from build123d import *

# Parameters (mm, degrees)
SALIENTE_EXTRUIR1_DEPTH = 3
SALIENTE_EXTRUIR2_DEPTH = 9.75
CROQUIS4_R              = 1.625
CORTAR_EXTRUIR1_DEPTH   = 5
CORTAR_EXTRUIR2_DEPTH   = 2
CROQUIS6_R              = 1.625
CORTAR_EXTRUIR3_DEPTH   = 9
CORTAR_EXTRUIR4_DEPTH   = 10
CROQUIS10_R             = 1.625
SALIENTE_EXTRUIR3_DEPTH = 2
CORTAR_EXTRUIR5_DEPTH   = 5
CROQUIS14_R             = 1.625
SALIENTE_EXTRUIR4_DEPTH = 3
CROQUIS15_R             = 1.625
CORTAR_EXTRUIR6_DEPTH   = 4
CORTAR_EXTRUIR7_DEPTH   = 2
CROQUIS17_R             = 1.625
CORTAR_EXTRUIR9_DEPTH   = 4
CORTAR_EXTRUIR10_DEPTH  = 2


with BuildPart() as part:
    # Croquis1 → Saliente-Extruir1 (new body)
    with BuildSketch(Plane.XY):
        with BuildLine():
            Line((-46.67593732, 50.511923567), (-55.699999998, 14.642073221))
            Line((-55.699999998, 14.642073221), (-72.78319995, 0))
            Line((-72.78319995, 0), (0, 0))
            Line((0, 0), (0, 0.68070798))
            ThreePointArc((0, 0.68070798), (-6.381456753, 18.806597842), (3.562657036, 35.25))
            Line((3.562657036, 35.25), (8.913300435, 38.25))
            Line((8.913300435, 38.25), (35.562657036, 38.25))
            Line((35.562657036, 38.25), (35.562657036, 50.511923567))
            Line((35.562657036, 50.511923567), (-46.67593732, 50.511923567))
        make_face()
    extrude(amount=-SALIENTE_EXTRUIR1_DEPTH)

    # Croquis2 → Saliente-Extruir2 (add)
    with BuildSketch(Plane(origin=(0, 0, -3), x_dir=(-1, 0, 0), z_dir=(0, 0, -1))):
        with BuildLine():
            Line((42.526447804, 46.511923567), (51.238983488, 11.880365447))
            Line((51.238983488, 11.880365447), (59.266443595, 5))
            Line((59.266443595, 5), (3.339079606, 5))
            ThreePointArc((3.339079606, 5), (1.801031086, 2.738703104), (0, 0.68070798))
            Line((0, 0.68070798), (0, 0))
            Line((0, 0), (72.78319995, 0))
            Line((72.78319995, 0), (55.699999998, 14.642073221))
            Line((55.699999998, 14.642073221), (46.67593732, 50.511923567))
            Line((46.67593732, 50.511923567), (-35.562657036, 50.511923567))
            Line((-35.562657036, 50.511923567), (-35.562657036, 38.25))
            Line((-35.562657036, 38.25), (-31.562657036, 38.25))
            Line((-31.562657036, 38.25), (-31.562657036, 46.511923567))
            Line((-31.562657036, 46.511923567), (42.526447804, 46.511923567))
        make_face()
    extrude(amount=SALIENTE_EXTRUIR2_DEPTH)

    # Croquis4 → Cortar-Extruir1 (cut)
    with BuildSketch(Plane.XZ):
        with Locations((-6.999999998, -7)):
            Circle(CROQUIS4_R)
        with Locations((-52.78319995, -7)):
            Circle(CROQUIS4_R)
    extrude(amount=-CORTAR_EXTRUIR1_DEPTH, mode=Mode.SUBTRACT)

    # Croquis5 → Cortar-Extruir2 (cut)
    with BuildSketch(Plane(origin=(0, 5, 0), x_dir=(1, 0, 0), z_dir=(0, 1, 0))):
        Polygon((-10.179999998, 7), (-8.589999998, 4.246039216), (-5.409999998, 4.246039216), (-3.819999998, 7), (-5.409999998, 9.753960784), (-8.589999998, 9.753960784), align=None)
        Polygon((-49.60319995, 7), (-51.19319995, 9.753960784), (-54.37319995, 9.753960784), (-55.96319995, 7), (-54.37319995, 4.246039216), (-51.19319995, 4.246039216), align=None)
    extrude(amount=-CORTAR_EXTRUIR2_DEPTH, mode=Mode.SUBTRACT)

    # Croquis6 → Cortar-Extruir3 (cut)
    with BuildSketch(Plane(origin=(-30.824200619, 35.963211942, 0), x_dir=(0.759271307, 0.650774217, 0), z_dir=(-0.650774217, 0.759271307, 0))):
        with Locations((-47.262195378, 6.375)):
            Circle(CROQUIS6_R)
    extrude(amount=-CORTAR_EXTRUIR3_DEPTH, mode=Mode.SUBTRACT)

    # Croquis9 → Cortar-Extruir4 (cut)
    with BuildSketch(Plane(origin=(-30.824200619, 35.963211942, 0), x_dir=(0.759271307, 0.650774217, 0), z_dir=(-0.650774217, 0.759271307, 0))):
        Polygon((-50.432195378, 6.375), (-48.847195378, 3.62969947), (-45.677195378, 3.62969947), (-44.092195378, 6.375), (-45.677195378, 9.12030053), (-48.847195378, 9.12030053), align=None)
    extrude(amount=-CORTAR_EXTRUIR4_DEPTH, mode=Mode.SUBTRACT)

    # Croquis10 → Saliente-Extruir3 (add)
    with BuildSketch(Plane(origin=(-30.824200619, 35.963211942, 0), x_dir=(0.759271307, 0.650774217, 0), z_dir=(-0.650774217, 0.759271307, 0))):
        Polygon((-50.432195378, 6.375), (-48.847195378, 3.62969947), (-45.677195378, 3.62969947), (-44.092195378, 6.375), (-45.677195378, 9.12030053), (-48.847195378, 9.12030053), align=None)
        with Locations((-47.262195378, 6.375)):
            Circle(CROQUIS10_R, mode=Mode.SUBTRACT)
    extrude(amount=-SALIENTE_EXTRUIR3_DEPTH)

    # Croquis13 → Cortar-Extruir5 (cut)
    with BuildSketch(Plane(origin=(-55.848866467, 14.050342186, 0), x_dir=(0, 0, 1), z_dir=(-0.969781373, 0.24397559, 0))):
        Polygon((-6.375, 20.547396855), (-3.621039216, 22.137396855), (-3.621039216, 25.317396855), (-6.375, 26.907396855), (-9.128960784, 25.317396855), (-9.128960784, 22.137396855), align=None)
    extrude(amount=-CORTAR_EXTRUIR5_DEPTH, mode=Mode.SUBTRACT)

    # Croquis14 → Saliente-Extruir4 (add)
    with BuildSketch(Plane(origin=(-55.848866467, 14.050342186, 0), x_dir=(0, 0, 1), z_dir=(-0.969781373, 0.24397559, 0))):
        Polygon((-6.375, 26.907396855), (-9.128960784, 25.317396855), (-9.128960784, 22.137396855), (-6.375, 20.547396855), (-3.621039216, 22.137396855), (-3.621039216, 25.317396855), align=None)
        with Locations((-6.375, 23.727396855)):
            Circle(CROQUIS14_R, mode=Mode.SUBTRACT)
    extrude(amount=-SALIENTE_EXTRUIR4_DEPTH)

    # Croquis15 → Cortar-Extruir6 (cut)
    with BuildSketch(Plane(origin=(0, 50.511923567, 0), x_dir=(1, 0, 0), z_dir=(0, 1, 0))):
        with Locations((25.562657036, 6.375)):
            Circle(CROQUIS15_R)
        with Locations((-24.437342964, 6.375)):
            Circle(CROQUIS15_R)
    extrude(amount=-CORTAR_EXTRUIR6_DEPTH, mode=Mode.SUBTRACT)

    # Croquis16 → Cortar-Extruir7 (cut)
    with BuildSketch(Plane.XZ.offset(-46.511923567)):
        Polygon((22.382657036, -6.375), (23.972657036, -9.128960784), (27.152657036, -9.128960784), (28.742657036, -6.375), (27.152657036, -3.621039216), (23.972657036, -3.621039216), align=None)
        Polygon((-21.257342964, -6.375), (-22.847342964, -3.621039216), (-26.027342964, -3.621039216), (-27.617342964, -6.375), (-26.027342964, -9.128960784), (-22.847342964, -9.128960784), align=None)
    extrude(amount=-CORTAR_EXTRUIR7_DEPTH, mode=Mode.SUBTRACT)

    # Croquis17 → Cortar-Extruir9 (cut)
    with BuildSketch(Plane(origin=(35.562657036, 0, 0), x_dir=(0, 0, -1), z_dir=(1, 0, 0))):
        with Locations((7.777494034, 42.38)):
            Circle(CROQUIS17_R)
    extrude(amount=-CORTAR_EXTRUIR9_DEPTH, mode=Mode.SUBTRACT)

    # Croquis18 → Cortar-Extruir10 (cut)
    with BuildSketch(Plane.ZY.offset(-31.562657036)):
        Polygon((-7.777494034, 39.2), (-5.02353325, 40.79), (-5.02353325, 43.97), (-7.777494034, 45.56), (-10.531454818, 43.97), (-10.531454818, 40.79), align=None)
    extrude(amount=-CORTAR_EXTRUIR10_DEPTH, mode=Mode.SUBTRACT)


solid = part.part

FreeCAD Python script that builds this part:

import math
import FreeCAD as App
import Part
import Sketcher

V = App.Vector
Q = App.Units.Quantity

doc = App.newDocument("Part")
body = doc.addObject("PartDesign::Body", "Body")

# Sketch on XY plane
sketch1 = body.newObject("Sketcher::SketchObject", "Sketch")
sketch1.AttachmentSupport = (doc.getObject("XY_Plane"), [""])
sketch1.MapMode = "FlatFace"
sketch1.addGeometry(Part.LineSegment(V(-46.675937, 50.511924, 0), V(-55.7, 14.642073, 0)), False)
sketch1.addGeometry(Part.LineSegment(V(-55.7, 14.642073, 0), V(-72.7832, 0, 0)), False)
sketch1.addGeometry(Part.LineSegment(V(-72.7832, 0, 0), V(0, 0, 0)), False)
sketch1.addGeometry(Part.LineSegment(V(0, 0, 0), V(0, 0.680708, 0)), False)
sketch1.addGeometry(Part.ArcOfCircle(Part.Circle(V(16, 16.5, 0), V(0, 0, 1), 22.5), math.radians(123.55731), math.radians(224.67461)), False)
sketch1.addGeometry(Part.LineSegment(V(3.562657, 35.25, 0), V(8.9133, 38.25, 0)), False)
sketch1.addGeometry(Part.LineSegment(V(8.9133, 38.25, 0), V(35.562657, 38.25, 0)), False)
sketch1.addGeometry(Part.LineSegment(V(35.562657, 38.25, 0), V(35.562657, 50.511924, 0)), False)
sketch1.addGeometry(Part.LineSegment(V(35.562657, 50.511924, 0), V(-46.675937, 50.511924, 0)), False)
sketch1.addConstraint(Sketcher.Constraint("Coincident", 0, 2, 1, 1))
sketch1.addConstraint(Sketcher.Constraint("Coincident", 1, 2, 2, 1))
sketch1.addConstraint(Sketcher.Constraint("Coincident", 2, 2, 3, 1))
sketch1.addConstraint(Sketcher.Constraint("Coincident", 3, 2, 4, 2))
sketch1.addConstraint(Sketcher.Constraint("Coincident", 4, 1, 5, 1))
sketch1.addConstraint(Sketcher.Constraint("Coincident", 5, 2, 6, 1))
sketch1.addConstraint(Sketcher.Constraint("Coincident", 6, 2, 7, 1))
sketch1.addConstraint(Sketcher.Constraint("Coincident", 7, 2, 8, 1))
sketch1.addConstraint(Sketcher.Constraint("Coincident", 8, 2, 0, 1))
sketch1.addConstraint(Sketcher.Constraint("Horizontal", 2))
sketch1.addConstraint(Sketcher.Constraint("Vertical", 3))
sketch1.addConstraint(Sketcher.Constraint("Horizontal", 6))
sketch1.addConstraint(Sketcher.Constraint("Vertical", 7))
sketch1.addConstraint(Sketcher.Constraint("Horizontal", 8))
sketch1.addConstraint(Sketcher.Constraint("Coincident", 2, 2, -1, 1))
sketch1.addConstraint(Sketcher.Constraint("Radius", 4, Q("22.5 mm")))
sketch1.addConstraint(Sketcher.Constraint("DistanceX", -1, 1, 4, 3, Q("16 mm")))
sketch1.addConstraint(Sketcher.Constraint("Angle", 1, Q("-139.4 deg")))
sketch1.addConstraint(Sketcher.Constraint("DistanceY", 4, 1, 5, 2, Q("3 mm")))
sketch1.addConstraint(Sketcher.Constraint("DistanceX", 4, 1, 6, 2, Q("32 mm")))
sketch1.addConstraint(Sketcher.Constraint("DistanceY", -1, 1, 4, 3, Q("16.5 mm")))
sketch1.addConstraint(Sketcher.Constraint("DistanceX", 0, 2, -1, 1, Q("55.7 mm")))
sketch1.addConstraint(Sketcher.Constraint("DistanceY", -1, 1, 4, 1, Q("35.25 mm")))
sketch1.addConstraint(Sketcher.Constraint("DistanceX", 2, 1, 2, 2, Q("72.7832 mm")))
sketch1.addConstraint(Sketcher.Constraint("DistanceX", -1, 1, 5, 2, Q("8.9133 mm")))
sketch1.addConstraint(Sketcher.Constraint("DistanceX", 8, 2, 8, 1, Q("82.238594 mm")))
sketch1.addConstraint(Sketcher.Constraint("DistanceY", 7, 1, 7, 2, Q("12.261924 mm")))
pad1 = body.newObject("PartDesign::Pad", "Pad")
pad1.Profile = sketch1
pad1.Length = 3
pad1.Reversed = True

# Sketch on XY plane
sketch2 = body.newObject("Sketcher::SketchObject", "Sketch001")
sketch2.AttachmentSupport = (doc.getObject("XY_Plane"), [""])
sketch2.MapMode = "FlatFace"
sketch2.AttachmentOffset = App.Placement(V(0, 0, -3), App.Rotation())
sketch2.addGeometry(Part.LineSegment(V(-42.526448, 46.511924, 0), V(-51.238983, 11.880365, 0)), False)
sketch2.addGeometry(Part.LineSegment(V(-51.238983, 11.880365, 0), V(-59.266444, 5, 0)), False)
sketch2.addGeometry(Part.LineSegment(V(-59.266444, 5, 0), V(-3.33908, 5, 0)), False)
sketch2.addGeometry(Part.ArcOfCircle(Part.Circle(V(16, 16.5, 0), V(0, 0, 1), 22.5), math.radians(-149.262131), math.radians(-135.32539)), False)
sketch2.addGeometry(Part.LineSegment(V(0, 0.680708, 0), V(0, 0, 0)), False)
sketch2.addGeometry(Part.LineSegment(V(0, 0, 0), V(-72.7832, 0, 0)), False)
sketch2.addGeometry(Part.LineSegment(V(-72.7832, 0, 0), V(-55.7, 14.642073, 0)), False)
sketch2.addGeometry(Part.LineSegment(V(-55.7, 14.642073, 0), V(-46.675937, 50.511924, 0)), False)
sketch2.addGeometry(Part.LineSegment(V(-46.675937, 50.511924, 0), V(35.562657, 50.511924, 0)), False)
sketch2.addGeometry(Part.LineSegment(V(35.562657, 50.511924, 0), V(35.562657, 38.25, 0)), False)
sketch2.addGeometry(Part.LineSegment(V(35.562657, 38.25, 0), V(31.562657, 38.25, 0)), False)
sketch2.addGeometry(Part.LineSegment(V(31.562657, 38.25, 0), V(31.562657, 46.511924, 0)), False)
sketch2.addGeometry(Part.LineSegment(V(31.562657, 46.511924, 0), V(-42.526448, 46.511924, 0)), False)
sketch2.addConstraint(Sketcher.Constraint("Coincident", 0, 2, 1, 1))
sketch2.addConstraint(Sketcher.Constraint("Coincident", 1, 2, 2, 1))
sketch2.addConstraint(Sketcher.Constraint("Coincident", 2, 2, 3, 1))
sketch2.addConstraint(Sketcher.Constraint("Coincident", 3, 2, 4, 1))
sketch2.addConstraint(Sketcher.Constraint("Coincident", 4, 2, 5, 1))
sketch2.addConstraint(Sketcher.Constraint("Coincident", 5, 2, 6, 1))
sketch2.addConstraint(Sketcher.Constraint("Coincident", 6, 2, 7, 1))
sketch2.addConstraint(Sketcher.Constraint("Coincident", 7, 2, 8, 1))
sketch2.addConstraint(Sketcher.Constraint("Coincident", 8, 2, 9, 1))
sketch2.addConstraint(Sketcher.Constraint("Coincident", 9, 2, 10, 1))
sketch2.addConstraint(Sketcher.Constraint("Coincident", 10, 2, 11, 1))
sketch2.addConstraint(Sketcher.Constraint("Coincident", 11, 2, 12, 1))
sketch2.addConstraint(Sketcher.Constraint("Coincident", 12, 2, 0, 1))
sketch2.addConstraint(Sketcher.Constraint("Horizontal", 2))
sketch2.addConstraint(Sketcher.Constraint("Vertical", 4))
sketch2.addConstraint(Sketcher.Constraint("Horizontal", 5))
sketch2.addConstraint(Sketcher.Constraint("Horizontal", 8))
sketch2.addConstraint(Sketcher.Constraint("Vertical", 9))
sketch2.addConstraint(Sketcher.Constraint("Horizontal", 10))
sketch2.addConstraint(Sketcher.Constraint("Vertical", 11))
sketch2.addConstraint(Sketcher.Constraint("Horizontal", 12))
sketch2.addConstraint(Sketcher.Constraint("Coincident", 4, 2, -1, 1))
sketch2.addConstraint(Sketcher.Constraint("Parallel", 1, 6))
sketch2.addConstraint(Sketcher.Constraint("Parallel", 0, 7))
sketch2.addConstraint(Sketcher.Constraint("Radius", 3, Q("22.5 mm")))
sketch2.addConstraint(Sketcher.Constraint("DistanceX", 10, 2, 10, 1, Q("4 mm")))
sketch2.addConstraint(Sketcher.Constraint("DistanceX", -1, 1, 3, 3, Q("16 mm")))
sketch2.addConstraint(Sketcher.Constraint("DistanceY", -1, 1, 1, 2, Q("5 mm")))
sketch2.addConstraint(Sketcher.Constraint("Angle", 1, Q("-139.4 deg")))
sketch2.addConstraint(Sketcher.Constraint("DistanceY", 11, 2, 8, 2, Q("4 mm")))
sketch2.addConstraint(Sketcher.Constraint("DistanceY", -1, 1, 3, 3, Q("16.5 mm")))
sketch2.addConstraint(Sketcher.Constraint("DistanceX", 6, 2, -1, 1, Q("55.7 mm")))
sketch2.addConstraint(Sketcher.Constraint("DistanceY", -1, 1, 9, 2, Q("38.25 mm")))
sketch2.addConstraint(Sketcher.Constraint("DistanceX", 5, 2, 5, 1, Q("72.7832 mm")))
sketch2.addConstraint(Sketcher.Constraint("DistanceX", 2, 1, 2, 2, Q("55.927364 mm")))
sketch2.addConstraint(Sketcher.Constraint("DistanceX", 8, 1, 8, 2, Q("82.238594 mm")))
sketch2.addConstraint(Sketcher.Constraint("DistanceX", 12, 2, 12, 1, Q("74.089105 mm")))
sketch2.addConstraint(Sketcher.Constraint("DistanceY", 9, 2, 9, 1, Q("12.261924 mm")))
sketch2.addConstraint(Sketcher.Constraint("DistanceX", 1, 2, 0, 2, Q("8.02746 mm")))
pad2 = body.newObject("PartDesign::Pad", "Pad001")
pad2.Profile = sketch2
pad2.Length = 9.75
pad2.Reversed = True

# Sketch on XZ plane
sketch3 = body.newObject("Sketcher::SketchObject", "Sketch002")
sketch3.AttachmentSupport = (doc.getObject("XZ_Plane"), [""])
sketch3.MapMode = "FlatFace"
sketch3.addGeometry(Part.Circle(V(-7, -7, 0), V(0, 0, 1), 1.625), False)
sketch3.addGeometry(Part.Circle(V(-52.7832, -7, 0), V(0, 0, 1), 1.625), False)
sketch3.addConstraint(Sketcher.Constraint("Equal", 0, 1))
sketch3.addConstraint(Sketcher.Constraint("Horizontal", 0, 3, 1, 3))
sketch3.addConstraint(Sketcher.Constraint("Diameter", 0, Q("3.25 mm")))
sketch3.addConstraint(Sketcher.Constraint("DistanceX", 0, 3, -1, 1, Q("7 mm")))
sketch3.addConstraint(Sketcher.Constraint("DistanceY", 0, 3, -1, 1, Q("7 mm")))
sketch3.addConstraint(Sketcher.Constraint("DistanceX", 1, 3, -1, 1, Q("52.7832 mm")))
pocket1 = body.newObject("PartDesign::Pocket", "Pocket")
pocket1.Profile = sketch3
pocket1.Length = 5

# Sketch on XZ plane
sketch4 = body.newObject("Sketcher::SketchObject", "Sketch003")
sketch4.AttachmentSupport = (doc.getObject("XZ_Plane"), [""])
sketch4.MapMode = "FlatFace"
sketch4.AttachmentOffset = App.Placement(V(0, 0, -5), App.Rotation())
sketch4.addGeometry(Part.LineSegment(V(-10.18, -7, 0), V(-8.59, -4.246039, 0)), False)
sketch4.addGeometry(Part.LineSegment(V(-8.59, -4.246039, 0), V(-5.41, -4.246039, 0)), False)
sketch4.addGeometry(Part.LineSegment(V(-5.41, -4.246039, 0), V(-3.82, -7, 0)), False)
sketch4.addGeometry(Part.LineSegment(V(-3.82, -7, 0), V(-5.41, -9.753961, 0)), False)
sketch4.addGeometry(Part.LineSegment(V(-5.41, -9.753961, 0), V(-8.59, -9.753961, 0)), False)
sketch4.addGeometry(Part.LineSegment(V(-8.59, -9.753961, 0), V(-10.18, -7, 0)), False)
sketch4.addGeometry(Part.LineSegment(V(-49.6032, -7, 0), V(-51.1932, -9.753961, 0)), False)
sketch4.addGeometry(Part.LineSegment(V(-51.1932, -9.753961, 0), V(-54.3732, -9.753961, 0)), False)
sketch4.addGeometry(Part.LineSegment(V(-54.3732, -9.753961, 0), V(-55.9632, -7, 0)), False)
sketch4.addGeometry(Part.LineSegment(V(-55.9632, -7, 0), V(-54.3732, -4.246039, 0)), False)
sketch4.addGeometry(Part.LineSegment(V(-54.3732, -4.246039, 0), V(-51.1932, -4.246039, 0)), False)
sketch4.addGeometry(Part.LineSegment(V(-51.1932, -4.246039, 0), V(-49.6032, -7, 0)), False)
sketch4.addConstraint(Sketcher.Constraint("Coincident", 0, 2, 1, 1))
sketch4.addConstraint(Sketcher.Constraint("Coincident", 1, 2, 2, 1))
sketch4.addConstraint(Sketcher.Constraint("Coincident", 2, 2, 3, 1))
sketch4.addConstraint(Sketcher.Constraint("Coincident", 3, 2, 4, 1))
sketch4.addConstraint(Sketcher.Constraint("Coincident", 4, 2, 5, 1))
sketch4.addConstraint(Sketcher.Constraint("Coincident", 5, 2, 0, 1))
sketch4.addConstraint(Sketcher.Constraint("Coincident", 6, 2, 7, 1))
sketch4.addConstraint(Sketcher.Constraint("Coincident", 7, 2, 8, 1))
sketch4.addConstraint(Sketcher.Constraint("Coincident", 8, 2, 9, 1))
sketch4.addConstraint(Sketcher.Constraint("Coincident", 9, 2, 10, 1))
sketch4.addConstraint(Sketcher.Constraint("Coincident", 10, 2, 11, 1))
sketch4.addConstraint(Sketcher.Constraint("Coincident", 11, 2, 6, 1))
sketch4.addConstraint(Sketcher.Constraint("Horizontal", 1))
sketch4.addConstraint(Sketcher.Constraint("Horizontal", 4))
sketch4.addConstraint(Sketcher.Constraint("Horizontal", 7))
sketch4.addConstraint(Sketcher.Constraint("Horizontal", 10))
sketch4.addConstraint(Sketcher.Constraint("Parallel", 0, 3))
sketch4.addConstraint(Sketcher.Constraint("Parallel", 2, 5))
sketch4.addConstraint(Sketcher.Constraint("Parallel", 3, 6))
sketch4.addConstraint(Sketcher.Constraint("Parallel", 5, 8))
sketch4.addConstraint(Sketcher.Constraint("Parallel", 6, 9))
sketch4.addConstraint(Sketcher.Constraint("Parallel", 8, 11))
sketch4.addConstraint(Sketcher.Constraint("Horizontal", 2, 2, 5, 2))
sketch4.addConstraint(Sketcher.Constraint("Horizontal", 4, 2, 6, 2))
sketch4.addConstraint(Sketcher.Constraint("Horizontal", 5, 2, 8, 2))
sketch4.addConstraint(Sketcher.Constraint("Horizontal", 1, 2, 9, 2))
sketch4.addConstraint(Sketcher.Constraint("Horizontal", 8, 2, 11, 2))
sketch4.addConstraint(Sketcher.Constraint("Vertical", 1, 2, 3, 2))
sketch4.addConstraint(Sketcher.Constraint("Vertical", 0, 2, 4, 2))
sketch4.addConstraint(Sketcher.Constraint("Equal", 4, 7))
sketch4.addConstraint(Sketcher.Constraint("Angle", 0, Q("60 deg")))
sketch4.addConstraint(Sketcher.Constraint("DistanceY", 2, 2, -1, 1, Q("7 mm")))
sketch4.addConstraint(Sketcher.Constraint("DistanceX", 1, 1, 1, 2, Q("3.18 mm")))
sketch4.addConstraint(Sketcher.Constraint("Distance", 0, Q("3.18 mm")))
sketch4.addConstraint(Sketcher.Constraint("DistanceX", 0, 2, -1, 1, Q("8.59 mm")))
sketch4.addConstraint(Sketcher.Constraint("DistanceX", 6, 2, -1, 1, Q("51.1932 mm")))
pocket2 = body.newObject("PartDesign::Pocket", "Pocket001")
pocket2.Profile = sketch4
pocket2.Length = 2
pocket2.Reversed = True

# Sketch on an angled plane
sketch5 = body.newObject("Sketcher::SketchObject", "Sketch004")
sketch5.Placement = App.Placement(V(-30.824201, 35.963212, 0), App.Rotation(V(0.759271307, 0.650774217, 0), V(0, 0, -0.999999999), V(-0.650774217, 0.759271307, 0), "ZXY"))
sketch5.addGeometry(Part.Circle(V(-47.262195, 6.375, 0), V(0, 0, 1), 1.625), False)
sketch5.addConstraint(Sketcher.Constraint("Diameter", 0, Q("3.25 mm")))
sketch5.addConstraint(Sketcher.Constraint("DistanceY", -1, 1, 0, 3, Q("6.375 mm")))
sketch5.addConstraint(Sketcher.Constraint("DistanceX", 0, 3, -1, 1, Q("47.262195 mm")))
pocket3 = body.newObject("PartDesign::Pocket", "Pocket002")
pocket3.Profile = sketch5
pocket3.Length = 9

# Sketch on an angled plane
sketch6 = body.newObject("Sketcher::SketchObject", "Sketch005")
sketch6.Placement = App.Placement(V(-30.824201, 35.963212, 0), App.Rotation(V(0.759271307, 0.650774217, 0), V(0, 0, -0.999999999), V(-0.650774217, 0.759271307, 0), "ZXY"))
sketch6.addGeometry(Part.LineSegment(V(-50.432195, 6.375, 0), V(-48.847195, 3.629699, 0)), False)
sketch6.addGeometry(Part.LineSegment(V(-48.847195, 3.629699, 0), V(-45.677195, 3.629699, 0)), False)
sketch6.addGeometry(Part.LineSegment(V(-45.677195, 3.629699, 0), V(-44.092195, 6.375, 0)), False)
sketch6.addGeometry(Part.LineSegment(V(-44.092195, 6.375, 0), V(-45.677195, 9.120301, 0)), False)
sketch6.addGeometry(Part.LineSegment(V(-45.677195, 9.120301, 0), V(-48.847195, 9.120301, 0)), False)
sketch6.addGeometry(Part.LineSegment(V(-48.847195, 9.120301, 0), V(-50.432195, 6.375, 0)), False)
sketch6.addConstraint(Sketcher.Constraint("Coincident", 0, 2, 1, 1))
sketch6.addConstraint(Sketcher.Constraint("Coincident", 1, 2, 2, 1))
sketch6.addConstraint(Sketcher.Constraint("Coincident", 2, 2, 3, 1))
sketch6.addConstraint(Sketcher.Constraint("Coincident", 3, 2, 4, 1))
sketch6.addConstraint(Sketcher.Constraint("Coincident", 4, 2, 5, 1))
sketch6.addConstraint(Sketcher.Constraint("Coincident", 5, 2, 0, 1))
sketch6.addConstraint(Sketcher.Constraint("Horizontal", 1))
sketch6.addConstraint(Sketcher.Constraint("Horizontal", 4))
sketch6.addConstraint(Sketcher.Constraint("Parallel", 0, 3))
sketch6.addConstraint(Sketcher.Constraint("Parallel", 2, 5))
sketch6.addConstraint(Sketcher.Constraint("Horizontal", 2, 2, 5, 2))
sketch6.addConstraint(Sketcher.Constraint("Vertical", 1, 2, 3, 2))
sketch6.addConstraint(Sketcher.Constraint("Vertical", 0, 2, 4, 2))
sketch6.addConstraint(Sketcher.Constraint("Angle", 0, Q("-60 deg")))
sketch6.addConstraint(Sketcher.Constraint("DistanceX", 1, 1, 1, 2, Q("3.17 mm")))
sketch6.addConstraint(Sketcher.Constraint("Distance", 0, Q("3.17 mm")))
sketch6.addConstraint(Sketcher.Constraint("DistanceY", -1, 1, 2, 2, Q("6.375 mm")))
sketch6.addConstraint(Sketcher.Constraint("DistanceX", 0, 2, -1, 1, Q("48.847195 mm")))
pocket4 = body.newObject("PartDesign::Pocket", "Pocket003")
pocket4.Profile = sketch6
pocket4.Length = 10

# Sketch on an angled plane
sketch7 = body.newObject("Sketcher::SketchObject", "Sketch006")
sketch7.Placement = App.Placement(V(-30.824201, 35.963212, 0), App.Rotation(V(0.759271307, 0.650774217, 0), V(0, 0, -0.999999999), V(-0.650774217, 0.759271307, 0), "ZXY"))
sketch7.addGeometry(Part.LineSegment(V(-50.432195, 6.375, 0), V(-48.847195, 3.629699, 0)), False)
sketch7.addGeometry(Part.LineSegment(V(-48.847195, 3.629699, 0), V(-45.677195, 3.629699, 0)), False)
sketch7.addGeometry(Part.LineSegment(V(-45.677195, 3.629699, 0), V(-44.092195, 6.375, 0)), False)
sketch7.addGeometry(Part.LineSegment(V(-44.092195, 6.375, 0), V(-45.677195, 9.120301, 0)), False)
sketch7.addGeometry(Part.LineSegment(V(-45.677195, 9.120301, 0), V(-48.847195, 9.120301, 0)), False)
sketch7.addGeometry(Part.LineSegment(V(-48.847195, 9.120301, 0), V(-50.432195, 6.375, 0)), False)
sketch7.addGeometry(Part.Circle(V(-47.262195, 6.375, 0), V(0, 0, 1), 1.625), False)
sketch7.addConstraint(Sketcher.Constraint("Coincident", 0, 2, 1, 1))
sketch7.addConstraint(Sketcher.Constraint("Coincident", 1, 2, 2, 1))
sketch7.addConstraint(Sketcher.Constraint("Coincident", 2, 2, 3, 1))
sketch7.addConstraint(Sketcher.Constraint("Coincident", 3, 2, 4, 1))
sketch7.addConstraint(Sketcher.Constraint("Coincident", 4, 2, 5, 1))
sketch7.addConstraint(Sketcher.Constraint("Coincident", 5, 2, 0, 1))
sketch7.addConstraint(Sketcher.Constraint("Horizontal", 1))
sketch7.addConstraint(Sketcher.Constraint("Horizontal", 4))
sketch7.addConstraint(Sketcher.Constraint("Parallel", 0, 3))
sketch7.addConstraint(Sketcher.Constraint("Parallel", 2, 5))
sketch7.addConstraint(Sketcher.Constraint("Horizontal", 6, 3, 2, 2))
sketch7.addConstraint(Sketcher.Constraint("Horizontal", 2, 2, 5, 2))
sketch7.addConstraint(Sketcher.Constraint("Vertical", 1, 2, 3, 2))
sketch7.addConstraint(Sketcher.Constraint("Vertical", 0, 2, 4, 2))
sketch7.addConstraint(Sketcher.Constraint("Diameter", 6, Q("3.25 mm")))
sketch7.addConstraint(Sketcher.Constraint("Angle", 0, Q("-60 deg")))
sketch7.addConstraint(Sketcher.Constraint("DistanceX", 1, 1, 1, 2, Q("3.17 mm")))
sketch7.addConstraint(Sketcher.Constraint("Distance", 0, Q("3.17 mm")))
sketch7.addConstraint(Sketcher.Constraint("DistanceX", 6, 3, 2, 2, Q("3.17 mm")))
sketch7.addConstraint(Sketcher.Constraint("DistanceY", -1, 1, 6, 3, Q("6.375 mm")))
sketch7.addConstraint(Sketcher.Constraint("DistanceX", 6, 3, -1, 1, Q("47.262195 mm")))
pad3 = body.newObject("PartDesign::Pad", "Pad002")
pad3.Profile = sketch7
pad3.Length = 2
pad3.Reversed = True

# Sketch on an angled plane
sketch8 = body.newObject("Sketcher::SketchObject", "Sketch007")
sketch8.Placement = App.Placement(V(-55.848866, 14.050342, 0), App.Rotation(V(0, 0, 1), V(0.24397559, 0.969781373, 0), V(-0.969781373, 0.24397559, 0), "ZXY"))
sketch8.addGeometry(Part.LineSegment(V(-6.375, 20.547397, 0), V(-3.621039, 22.137397, 0)), False)
sketch8.addGeometry(Part.LineSegment(V(-3.621039, 22.137397, 0), V(-3.621039, 25.317397, 0)), False)
sketch8.addGeometry(Part.LineSegment(V(-3.621039, 25.317397, 0), V(-6.375, 26.907397, 0)), False)
sketch8.addGeometry(Part.LineSegment(V(-6.375, 26.907397, 0), V(-9.128961, 25.317397, 0)), False)
sketch8.addGeometry(Part.LineSegment(V(-9.128961, 25.317397, 0), V(-9.128961, 22.137397, 0)), False)
sketch8.addGeometry(Part.LineSegment(V(-9.128961, 22.137397, 0), V(-6.375, 20.547397, 0)), False)
sketch8.addConstraint(Sketcher.Constraint("Coincident", 0, 2, 1, 1))
sketch8.addConstraint(Sketcher.Constraint("Coincident", 1, 2, 2, 1))
sketch8.addConstraint(Sketcher.Constraint("Coincident", 2, 2, 3, 1))
sketch8.addConstraint(Sketcher.Constraint("Coincident", 3, 2, 4, 1))
sketch8.addConstraint(Sketcher.Constraint("Coincident", 4, 2, 5, 1))
sketch8.addConstraint(Sketcher.Constraint("Coincident", 5, 2, 0, 1))
sketch8.addConstraint(Sketcher.Constraint("Vertical", 1))
sketch8.addConstraint(Sketcher.Constraint("Vertical", 4))
sketch8.addConstraint(Sketcher.Constraint("Parallel", 0, 3))
sketch8.addConstraint(Sketcher.Constraint("Parallel", 2, 5))
sketch8.addConstraint(Sketcher.Constraint("Horizontal", 1, 2, 3, 2))
sketch8.addConstraint(Sketcher.Constraint("Horizontal", 0, 2, 4, 2))
sketch8.addConstraint(Sketcher.Constraint("Vertical", 2, 2, 5, 2))
sketch8.addConstraint(Sketcher.Constraint("Angle", 0, Q("30 deg")))
sketch8.addConstraint(Sketcher.Constraint("DistanceY", 1, 1, 1, 2, Q("3.18 mm")))
sketch8.addConstraint(Sketcher.Constraint("Distance", 0, Q("3.18 mm")))
sketch8.addConstraint(Sketcher.Constraint("DistanceX", 2, 2, -1, 1, Q("6.375 mm")))
sketch8.addConstraint(Sketcher.Constraint("DistanceY", -1, 1, 0, 2, Q("22.137397 mm")))
pocket5 = body.newObject("PartDesign::Pocket", "Pocket004")
pocket5.Profile = sketch8
pocket5.Length = 5

# Sketch on an angled plane
sketch9 = body.newObject("Sketcher::SketchObject", "Sketch008")
sketch9.Placement = App.Placement(V(-55.848866, 14.050342, 0), App.Rotation(V(0, 0, 1), V(0.24397559, 0.969781373, 0), V(-0.969781373, 0.24397559, 0), "ZXY"))
sketch9.addGeometry(Part.LineSegment(V(-6.375, 26.907397, 0), V(-9.128961, 25.317397, 0)), False)
sketch9.addGeometry(Part.LineSegment(V(-9.128961, 25.317397, 0), V(-9.128961, 22.137397, 0)), False)
sketch9.addGeometry(Part.LineSegment(V(-9.128961, 22.137397, 0), V(-6.375, 20.547397, 0)), False)
sketch9.addGeometry(Part.LineSegment(V(-6.375, 20.547397, 0), V(-3.621039, 22.137397, 0)), False)
sketch9.addGeometry(Part.LineSegment(V(-3.621039, 22.137397, 0), V(-3.621039, 25.317397, 0)), False)
sketch9.addGeometry(Part.LineSegment(V(-3.621039, 25.317397, 0), V(-6.375, 26.907397, 0)), False)
sketch9.addGeometry(Part.Circle(V(-6.375, 23.727397, 0), V(0, 0, 1), 1.625), False)
sketch9.addConstraint(Sketcher.Constraint("Coincident", 0, 2, 1, 1))
sketch9.addConstraint(Sketcher.Constraint("Coincident", 1, 2, 2, 1))
sketch9.addConstraint(Sketcher.Constraint("Coincident", 2, 2, 3, 1))
sketch9.addConstraint(Sketcher.Constraint("Coincident", 3, 2, 4, 1))
sketch9.addConstraint(Sketcher.Constraint("Coincident", 4, 2, 5, 1))
sketch9.addConstraint(Sketcher.Constraint("Coincident", 5, 2, 0, 1))
sketch9.addConstraint(Sketcher.Constraint("Vertical", 1))
sketch9.addConstraint(Sketcher.Constraint("Vertical", 4))
sketch9.addConstraint(Sketcher.Constraint("Parallel", 0, 3))
sketch9.addConstraint(Sketcher.Constraint("Parallel", 2, 5))
sketch9.addConstraint(Sketcher.Constraint("Horizontal", 1, 2, 3, 2))
sketch9.addConstraint(Sketcher.Constraint("Horizontal", 0, 2, 4, 2))
sketch9.addConstraint(Sketcher.Constraint("Vertical", 6, 3, 2, 2))
sketch9.addConstraint(Sketcher.Constraint("Vertical", 2, 2, 5, 2))
sketch9.addConstraint(Sketcher.Constraint("Diameter", 6, Q("3.25 mm")))
sketch9.addConstraint(Sketcher.Constraint("Angle", 0, Q("-150 deg")))
sketch9.addConstraint(Sketcher.Constraint("DistanceY", 1, 2, 1, 1, Q("3.18 mm")))
sketch9.addConstraint(Sketcher.Constraint("Distance", 0, Q("3.18 mm")))
sketch9.addConstraint(Sketcher.Constraint("DistanceY", 6, 3, 0, 2, Q("1.59 mm")))
sketch9.addConstraint(Sketcher.Constraint("DistanceX", 6, 3, -1, 1, Q("6.375 mm")))
sketch9.addConstraint(Sketcher.Constraint("DistanceY", -1, 1, 6, 3, Q("23.727397 mm")))
pad4 = body.newObject("PartDesign::Pad", "Pad003")
pad4.Profile = sketch9
pad4.Length = 3
pad4.Reversed = True

# Sketch on XZ plane
sketch10 = body.newObject("Sketcher::SketchObject", "Sketch009")
sketch10.AttachmentSupport = (doc.getObject("XZ_Plane"), [""])
sketch10.MapMode = "FlatFace"
sketch10.AttachmentOffset = App.Placement(V(0, 0, -50.511924), App.Rotation())
sketch10.addGeometry(Part.Circle(V(25.562657, -6.375, 0), V(0, 0, 1), 1.625), False)
sketch10.addGeometry(Part.Circle(V(-24.437343, -6.375, 0), V(0, 0, 1), 1.625), False)
sketch10.addConstraint(Sketcher.Constraint("Equal", 0, 1))
sketch10.addConstraint(Sketcher.Constraint("Horizontal", 0, 3, 1, 3))
sketch10.addConstraint(Sketcher.Constraint("Diameter", 0, Q("3.25 mm")))
sketch10.addConstraint(Sketcher.Constraint("DistanceX", 1, 3, 0, 3, Q("50 mm")))
sketch10.addConstraint(Sketcher.Constraint("DistanceY", 0, 3, -1, 1, Q("6.375 mm")))
sketch10.addConstraint(Sketcher.Constraint("DistanceX", -1, 1, 0, 3, Q("25.562657 mm")))
pocket6 = body.newObject("PartDesign::Pocket", "Pocket005")
pocket6.Profile = sketch10
pocket6.Length = 4
pocket6.Reversed = True

# Sketch on XZ plane
sketch11 = body.newObject("Sketcher::SketchObject", "Sketch010")
sketch11.AttachmentSupport = (doc.getObject("XZ_Plane"), [""])
sketch11.MapMode = "FlatFace"
sketch11.AttachmentOffset = App.Placement(V(0, 0, -46.511924), App.Rotation())
sketch11.addGeometry(Part.LineSegment(V(22.382657, -6.375, 0), V(23.972657, -9.128961, 0)), False)
sketch11.addGeometry(Part.LineSegment(V(23.972657, -9.128961, 0), V(27.152657, -9.128961, 0)), False)
sketch11.addGeometry(Part.LineSegment(V(27.152657, -9.128961, 0), V(28.742657, -6.375, 0)), False)
sketch11.addGeometry(Part.LineSegment(V(28.742657, -6.375, 0), V(27.152657, -3.621039, 0)), False)
sketch11.addGeometry(Part.LineSegment(V(27.152657, -3.621039, 0), V(23.972657, -3.621039, 0)), False)
sketch11.addGeometry(Part.LineSegment(V(23.972657, -3.621039, 0), V(22.382657, -6.375, 0)), False)
sketch11.addGeometry(Part.LineSegment(V(-21.257343, -6.375, 0), V(-22.847343, -3.621039, 0)), False)
sketch11.addGeometry(Part.LineSegment(V(-22.847343, -3.621039, 0), V(-26.027343, -3.621039, 0)), False)
sketch11.addGeometry(Part.LineSegment(V(-26.027343, -3.621039, 0), V(-27.617343, -6.375, 0)), False)
sketch11.addGeometry(Part.LineSegment(V(-27.617343, -6.375, 0), V(-26.027343, -9.128961, 0)), False)
sketch11.addGeometry(Part.LineSegment(V(-26.027343, -9.128961, 0), V(-22.847343, -9.128961, 0)), False)
sketch11.addGeometry(Part.LineSegment(V(-22.847343, -9.128961, 0), V(-21.257343, -6.375, 0)), False)
sketch11.addConstraint(Sketcher.Constraint("Coincident", 0, 2, 1, 1))
sketch11.addConstraint(Sketcher.Constraint("Coincident", 1, 2, 2, 1))
sketch11.addConstraint(Sketcher.Constraint("Coincident", 2, 2, 3, 1))
sketch11.addConstraint(Sketcher.Constraint("Coincident", 3, 2, 4, 1))
sketch11.addConstraint(Sketcher.Constraint("Coincident", 4, 2, 5, 1))
sketch11.addConstraint(Sketcher.Constraint("Coincident", 5, 2, 0, 1))
sketch11.addConstraint(Sketcher.Constraint("Coincident", 6, 2, 7, 1))
sketch11.addConstraint(Sketcher.Constraint("Coincident", 7, 2, 8, 1))
sketch11.addConstraint(Sketcher.Constraint("Coincident", 8, 2, 9, 1))
sketch11.addConstraint(Sketcher.Constraint("Coincident", 9, 2, 10, 1))
sketch11.addConstraint(Sketcher.Constraint("Coincident", 10, 2, 11, 1))
sketch11.addConstraint(Sketcher.Constraint("Coincident", 11, 2, 6, 1))
sketch11.addConstraint(Sketcher.Constraint("Horizontal", 1))
sketch11.addConstraint(Sketcher.Constraint("Horizontal", 4))
sketch11.addConstraint(Sketcher.Constraint("Horizontal", 7))
sketch11.addConstraint(Sketcher.Constraint("Horizontal", 10))
sketch11.addConstraint(Sketcher.Constraint("Parallel", 0, 3))
sketch11.addConstraint(Sketcher.Constraint("Parallel", 2, 5))
sketch11.addConstraint(Sketcher.Constraint("Parallel", 3, 6))
sketch11.addConstraint(Sketcher.Constraint("Parallel", 5, 8))
sketch11.addConstraint(Sketcher.Constraint("Parallel", 6, 9))
sketch11.addConstraint(Sketcher.Constraint("Parallel", 8, 11))
sketch11.addConstraint(Sketcher.Constraint("Horizontal", 2, 2, 5, 2))
sketch11.addConstraint(Sketcher.Constraint("Horizontal", 4, 2, 6, 2))
sketch11.addConstraint(Sketcher.Constraint("Horizontal", 5, 2, 8, 2))
sketch11.addConstraint(Sketcher.Constraint("Horizontal", 1, 2, 9, 2))
sketch11.addConstraint(Sketcher.Constraint("Horizontal", 8, 2, 11, 2))
sketch11.addConstraint(Sketcher.Constraint("Vertical", 1, 2, 3, 2))
sketch11.addConstraint(Sketcher.Constraint("Vertical", 0, 2, 4, 2))
sketch11.addConstraint(Sketcher.Constraint("Equal", 4, 7))
sketch11.addConstraint(Sketcher.Constraint("Angle", 0, Q("-60 deg")))
sketch11.addConstraint(Sketcher.Constraint("DistanceX", 6, 2, 3, 2, Q("50 mm")))
sketch11.addConstraint(Sketcher.Constraint("DistanceX", 1, 1, 1, 2, Q("3.18 mm")))
sketch11.addConstraint(Sketcher.Constraint("Distance", 0, Q("3.18 mm")))
sketch11.addConstraint(Sketcher.Constraint("DistanceY", 2, 2, -1, 1, Q("6.375 mm")))
sketch11.addConstraint(Sketcher.Constraint("DistanceX", -1, 1, 0, 2, Q("23.972657 mm")))
pocket7 = body.newObject("PartDesign::Pocket", "Pocket006")
pocket7.Profile = sketch11
pocket7.Length = 2

# Sketch on YZ plane
sketch12 = body.newObject("Sketcher::SketchObject", "Sketch011")
sketch12.AttachmentSupport = (doc.getObject("YZ_Plane"), [""])
sketch12.MapMode = "FlatFace"
sketch12.AttachmentOffset = App.Placement(V(0, 0, 35.562657), App.Rotation())
sketch12.addGeometry(Part.Circle(V(42.38, -7.777494, 0), V(0, 0, 1), 1.625), False)
sketch12.addConstraint(Sketcher.Constraint("Diameter", 0, Q("3.25 mm")))
sketch12.addConstraint(Sketcher.Constraint("DistanceX", -1, 1, 0, 3, Q("42.38 mm")))
sketch12.addConstraint(Sketcher.Constraint("DistanceY", 0, 3, -1, 1, Q("7.777494 mm")))
pocket8 = body.newObject("PartDesign::Pocket", "Pocket007")
pocket8.Profile = sketch12
pocket8.Length = 4

# Sketch on YZ plane
sketch13 = body.newObject("Sketcher::SketchObject", "Sketch012")
sketch13.AttachmentSupport = (doc.getObject("YZ_Plane"), [""])
sketch13.MapMode = "FlatFace"
sketch13.AttachmentOffset = App.Placement(V(0, 0, 31.562657), App.Rotation())
sketch13.addGeometry(Part.LineSegment(V(39.2, -7.777494, 0), V(40.79, -5.023533, 0)), False)
sketch13.addGeometry(Part.LineSegment(V(40.79, -5.023533, 0), V(43.97, -5.023533, 0)), False)
sketch13.addGeometry(Part.LineSegment(V(43.97, -5.023533, 0), V(45.56, -7.777494, 0)), False)
sketch13.addGeometry(Part.LineSegment(V(45.56, -7.777494, 0), V(43.97, -10.531455, 0)), False)
sketch13.addGeometry(Part.LineSegment(V(43.97, -10.531455, 0), V(40.79, -10.531455, 0)), False)
sketch13.addGeometry(Part.LineSegment(V(40.79, -10.531455, 0), V(39.2, -7.777494, 0)), False)
sketch13.addConstraint(Sketcher.Constraint("Coincident", 0, 2, 1, 1))
sketch13.addConstraint(Sketcher.Constraint("Coincident", 1, 2, 2, 1))
sketch13.addConstraint(Sketcher.Constraint("Coincident", 2, 2, 3, 1))
sketch13.addConstraint(Sketcher.Constraint("Coincident", 3, 2, 4, 1))
sketch13.addConstraint(Sketcher.Constraint("Coincident", 4, 2, 5, 1))
sketch13.addConstraint(Sketcher.Constraint("Coincident", 5, 2, 0, 1))
sketch13.addConstraint(Sketcher.Constraint("Horizontal", 1))
sketch13.addConstraint(Sketcher.Constraint("Horizontal", 4))
sketch13.addConstraint(Sketcher.Constraint("Parallel", 0, 3))
sketch13.addConstraint(Sketcher.Constraint("Parallel", 2, 5))
sketch13.addConstraint(Sketcher.Constraint("Horizontal", 2, 2, 5, 2))
sketch13.addConstraint(Sketcher.Constraint("Vertical", 1, 2, 3, 2))
sketch13.addConstraint(Sketcher.Constraint("Vertical", 0, 2, 4, 2))
sketch13.addConstraint(Sketcher.Constraint("Angle", 0, Q("60 deg")))
sketch13.addConstraint(Sketcher.Constraint("DistanceX", 1, 1, 1, 2, Q("3.18 mm")))
sketch13.addConstraint(Sketcher.Constraint("DistanceX", -1, 1, 5, 2, Q("39.2 mm")))
sketch13.addConstraint(Sketcher.Constraint("Distance", 0, Q("3.18 mm")))
sketch13.addConstraint(Sketcher.Constraint("DistanceY", 0, 2, -1, 1, Q("5.023533 mm")))
pocket9 = body.newObject("PartDesign::Pocket", "Pocket008")
pocket9.Profile = sketch13
pocket9.Length = 2
pocket9.Reversed = True

doc.recompute()
